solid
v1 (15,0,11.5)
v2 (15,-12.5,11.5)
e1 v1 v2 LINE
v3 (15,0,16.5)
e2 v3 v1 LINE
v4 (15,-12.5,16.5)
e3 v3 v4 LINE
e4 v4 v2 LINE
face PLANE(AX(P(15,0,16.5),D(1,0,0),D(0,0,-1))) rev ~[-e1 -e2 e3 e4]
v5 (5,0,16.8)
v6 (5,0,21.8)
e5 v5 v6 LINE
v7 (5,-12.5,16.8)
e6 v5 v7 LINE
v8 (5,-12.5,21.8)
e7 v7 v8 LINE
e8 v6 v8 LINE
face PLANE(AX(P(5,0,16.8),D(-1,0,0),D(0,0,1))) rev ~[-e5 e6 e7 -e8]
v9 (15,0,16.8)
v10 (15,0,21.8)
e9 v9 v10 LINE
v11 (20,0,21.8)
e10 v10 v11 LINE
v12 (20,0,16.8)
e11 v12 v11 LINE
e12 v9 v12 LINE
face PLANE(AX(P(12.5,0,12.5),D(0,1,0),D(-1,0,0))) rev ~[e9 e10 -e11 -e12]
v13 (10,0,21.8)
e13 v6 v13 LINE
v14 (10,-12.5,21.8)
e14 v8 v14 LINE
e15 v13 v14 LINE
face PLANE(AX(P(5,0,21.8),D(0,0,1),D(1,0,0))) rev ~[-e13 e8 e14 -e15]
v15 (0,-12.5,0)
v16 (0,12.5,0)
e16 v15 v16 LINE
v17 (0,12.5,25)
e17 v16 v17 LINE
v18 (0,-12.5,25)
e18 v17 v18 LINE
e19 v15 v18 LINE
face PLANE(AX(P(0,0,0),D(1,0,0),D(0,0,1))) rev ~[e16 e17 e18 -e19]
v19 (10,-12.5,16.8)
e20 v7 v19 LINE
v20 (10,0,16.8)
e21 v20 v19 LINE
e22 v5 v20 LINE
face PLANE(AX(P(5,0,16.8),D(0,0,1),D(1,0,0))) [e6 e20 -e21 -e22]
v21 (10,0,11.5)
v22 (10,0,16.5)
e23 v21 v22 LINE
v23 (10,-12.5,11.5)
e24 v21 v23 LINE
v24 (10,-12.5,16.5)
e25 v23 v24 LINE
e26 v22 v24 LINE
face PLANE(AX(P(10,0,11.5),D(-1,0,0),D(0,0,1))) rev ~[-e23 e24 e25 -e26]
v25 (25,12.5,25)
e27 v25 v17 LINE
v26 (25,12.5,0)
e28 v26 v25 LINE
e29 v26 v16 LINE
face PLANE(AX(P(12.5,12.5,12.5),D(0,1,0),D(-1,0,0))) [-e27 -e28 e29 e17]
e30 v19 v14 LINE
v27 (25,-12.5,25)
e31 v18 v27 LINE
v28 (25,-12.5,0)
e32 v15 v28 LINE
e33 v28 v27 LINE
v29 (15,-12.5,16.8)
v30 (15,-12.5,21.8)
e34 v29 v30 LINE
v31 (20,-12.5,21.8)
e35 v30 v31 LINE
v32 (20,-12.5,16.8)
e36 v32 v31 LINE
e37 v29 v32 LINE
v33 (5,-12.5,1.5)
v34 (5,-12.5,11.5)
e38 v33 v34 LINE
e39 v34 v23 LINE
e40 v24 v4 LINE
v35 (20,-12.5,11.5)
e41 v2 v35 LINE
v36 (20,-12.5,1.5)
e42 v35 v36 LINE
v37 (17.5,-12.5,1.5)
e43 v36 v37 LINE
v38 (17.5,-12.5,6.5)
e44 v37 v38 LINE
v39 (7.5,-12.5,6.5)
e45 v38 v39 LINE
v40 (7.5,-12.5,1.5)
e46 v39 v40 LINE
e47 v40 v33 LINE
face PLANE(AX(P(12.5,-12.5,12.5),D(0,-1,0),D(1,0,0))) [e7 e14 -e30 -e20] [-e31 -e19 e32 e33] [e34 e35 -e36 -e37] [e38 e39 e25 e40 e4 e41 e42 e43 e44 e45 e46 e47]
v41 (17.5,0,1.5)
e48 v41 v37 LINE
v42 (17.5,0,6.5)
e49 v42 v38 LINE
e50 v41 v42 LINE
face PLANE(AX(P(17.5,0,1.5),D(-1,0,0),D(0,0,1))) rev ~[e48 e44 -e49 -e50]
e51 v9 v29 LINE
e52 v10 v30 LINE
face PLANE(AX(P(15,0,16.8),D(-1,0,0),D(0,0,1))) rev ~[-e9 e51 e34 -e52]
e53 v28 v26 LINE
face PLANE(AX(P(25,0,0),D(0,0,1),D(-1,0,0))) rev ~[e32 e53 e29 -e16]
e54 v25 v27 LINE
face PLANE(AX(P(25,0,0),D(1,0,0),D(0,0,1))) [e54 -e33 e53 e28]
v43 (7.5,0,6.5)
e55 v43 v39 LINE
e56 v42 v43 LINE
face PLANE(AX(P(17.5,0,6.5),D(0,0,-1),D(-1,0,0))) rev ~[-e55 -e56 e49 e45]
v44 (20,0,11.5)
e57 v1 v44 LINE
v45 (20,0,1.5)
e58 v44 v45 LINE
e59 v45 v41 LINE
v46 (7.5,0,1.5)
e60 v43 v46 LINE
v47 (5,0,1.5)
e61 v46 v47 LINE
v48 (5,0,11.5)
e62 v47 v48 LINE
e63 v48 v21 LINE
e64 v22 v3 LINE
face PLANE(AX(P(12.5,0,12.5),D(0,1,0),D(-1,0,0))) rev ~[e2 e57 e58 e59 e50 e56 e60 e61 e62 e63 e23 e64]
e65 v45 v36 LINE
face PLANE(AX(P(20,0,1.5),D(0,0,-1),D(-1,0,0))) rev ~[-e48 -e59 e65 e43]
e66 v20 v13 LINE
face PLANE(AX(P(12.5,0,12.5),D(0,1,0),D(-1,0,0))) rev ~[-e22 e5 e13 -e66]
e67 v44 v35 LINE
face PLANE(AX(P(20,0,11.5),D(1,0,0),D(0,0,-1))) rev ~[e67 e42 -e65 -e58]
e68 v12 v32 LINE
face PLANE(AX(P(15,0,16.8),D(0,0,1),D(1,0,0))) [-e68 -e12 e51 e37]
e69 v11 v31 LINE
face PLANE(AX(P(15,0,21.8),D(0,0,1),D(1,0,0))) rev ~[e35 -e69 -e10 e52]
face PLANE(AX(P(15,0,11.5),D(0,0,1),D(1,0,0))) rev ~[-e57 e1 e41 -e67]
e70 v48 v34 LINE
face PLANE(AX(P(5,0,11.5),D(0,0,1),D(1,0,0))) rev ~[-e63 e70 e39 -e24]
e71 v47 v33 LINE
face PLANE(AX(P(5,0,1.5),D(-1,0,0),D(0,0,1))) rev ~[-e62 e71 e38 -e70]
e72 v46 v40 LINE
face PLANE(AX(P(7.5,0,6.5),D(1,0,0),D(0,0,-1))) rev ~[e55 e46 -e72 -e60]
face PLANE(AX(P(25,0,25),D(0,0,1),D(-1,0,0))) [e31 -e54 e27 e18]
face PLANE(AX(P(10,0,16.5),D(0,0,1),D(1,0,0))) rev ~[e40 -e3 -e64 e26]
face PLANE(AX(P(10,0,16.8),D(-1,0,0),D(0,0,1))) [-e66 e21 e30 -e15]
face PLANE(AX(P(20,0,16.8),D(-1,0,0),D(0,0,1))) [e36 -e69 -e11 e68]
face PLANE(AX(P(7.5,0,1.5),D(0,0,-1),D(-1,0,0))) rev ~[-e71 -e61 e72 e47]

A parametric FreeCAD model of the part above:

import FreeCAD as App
import Part
import Sketcher
from FreeCAD import Vector


def add_polygon(sketch, points):
    """Adds a closed chain of lines whose ends are joined by coincident constraints."""
    first, n = sketch.GeometryCount, len(points)
    for a, b in zip(points, points[1:] + points[:1]):
        sketch.addGeometry(Part.LineSegment(App.Vector(*a, 0), App.Vector(*b, 0)), False)
    for i in range(n):
        sketch.addConstraint(Sketcher.Constraint("Coincident", first + i, 2, first + (i + 1) % n, 1))

doc = App.newDocument("Part")
body = doc.addObject("PartDesign::Body", "Body")

sketch1 = body.newObject("Sketcher::SketchObject", "Sketch")
sketch1.AttachmentSupport = (doc.getObject("XZ_Plane"), [""])
sketch1.MapMode = "FlatFace"
add_polygon(sketch1, [(0, 25), (0, 0), (25, 0), (25, 25)])
add_polygon(sketch1, [(10, 11.5), (10, 16.5), (15, 16.5), (15, 11.5), (20, 11.5), (20, 1.5), (17.5, 1.5), (17.5, 6.5), (7.5, 6.5), (7.5, 1.5), (5, 1.5), (5, 11.5)])
add_polygon(sketch1, [(10, 16.8), (5, 16.8), (5, 21.8), (10, 21.8)])
add_polygon(sketch1, [(20, 16.8), (15, 16.8), (15, 21.8), (20, 21.8)])
sketch1.addConstraint([
    Sketcher.Constraint("Vertical", 0),
    Sketcher.Constraint("Horizontal", 1),
    Sketcher.Constraint("Vertical", 2),
    Sketcher.Constraint("Horizontal", 3),
    Sketcher.Constraint("Vertical", 4),
    Sketcher.Constraint("Horizontal", 5),
    Sketcher.Constraint("Vertical", 6),
    Sketcher.Constraint("Horizontal", 7),
    Sketcher.Constraint("Vertical", 8),
    Sketcher.Constraint("Horizontal", 9),
    Sketcher.Constraint("Vertical", 10),
    Sketcher.Constraint("Horizontal", 11),
    Sketcher.Constraint("Vertical", 12),
    Sketcher.Constraint("Horizontal", 13),
    Sketcher.Constraint("Vertical", 14),
    Sketcher.Constraint("Horizontal", 15),
    Sketcher.Constraint("Horizontal", 16),
    Sketcher.Constraint("Vertical", 17),
    Sketcher.Constraint("Horizontal", 18),
    Sketcher.Constraint("Vertical", 19),
    Sketcher.Constraint("Horizontal", 20),
    Sketcher.Constraint("Vertical", 21),
    Sketcher.Constraint("Horizontal", 22),
    Sketcher.Constraint("Vertical", 23),
    Sketcher.Constraint("Coincident", 0, 2, -1, 1),
    Sketcher.Constraint("Horizontal", 9, 2, 12, 2),
    Sketcher.Constraint("Horizontal", 7, 2, 14, 2),
    Sketcher.Constraint("Horizontal", 19, 2, 20, 2),
    Sketcher.Constraint("Horizontal", 18, 2, 21, 2),
    Sketcher.Constraint("Vertical", 14, 2, 16, 2),
    Sketcher.Constraint("Vertical", 15, 2, 18, 2),
    Sketcher.Constraint("Vertical", 6, 2, 20, 2),
    Sketcher.Constraint("Vertical", 8, 2, 22, 2),
    Sketcher.Constraint("Equal", 5, 7),
    Sketcher.Constraint("Equal", 9, 13),
    Sketcher.Constraint("Equal", 7, 15),
    Sketcher.Constraint("Equal", 3, 0),
    Sketcher.Constraint("Equal", 22, 4),
    Sketcher.Constraint("Equal", 11, 8),
    Sketcher.Constraint("Equal", 6, 10),
    Sketcher.Constraint("Equal", 12, 17),
    Sketcher.Constraint("DistanceX", 1, 1, 1, 2, 25.0),
    Sketcher.Constraint("DistanceX", 5, 1, 5, 2, 5.0),
    Sketcher.Constraint("DistanceX", 11, 2, 11, 1, 10.0),
    Sketcher.Constraint("DistanceX", -1, 1, 4, 2, 10.0),
    Sketcher.Constraint("DistanceY", -1, 1, 4, 2, 16.5),
    Sketcher.Constraint("DistanceY", -1, 1, 16, 2, 16.8),
])
pad1 = body.newObject("PartDesign::Pad", "Pad")
pad1.Profile = sketch1
pad1.Length = 12.5

sketch2 = body.newObject("Sketcher::SketchObject", "Sketch001")
sketch2.AttachmentSupport = (doc.getObject("XZ_Plane"), [""])
sketch2.MapMode = "FlatFace"
add_polygon(sketch2, [(25, 25), (25, 0), (0, 0), (0, 25)])
sketch2.addConstraint([
    Sketcher.Constraint("Vertical", 0),
    Sketcher.Constraint("Horizontal", 1),
    Sketcher.Constraint("Vertical", 2),
    Sketcher.Constraint("Horizontal", 3),
    Sketcher.Constraint("Coincident", 1, 2, -1, 1),
    Sketcher.Constraint("Equal", 3, 0),
    Sketcher.Constraint("DistanceX", 1, 2, 1, 1, 25.0),
])
pad2 = body.newObject("PartDesign::Pad", "Pad001")
pad2.Profile = sketch2
pad2.Length = 12.5
pad2.Reversed = True

doc.recompute()
